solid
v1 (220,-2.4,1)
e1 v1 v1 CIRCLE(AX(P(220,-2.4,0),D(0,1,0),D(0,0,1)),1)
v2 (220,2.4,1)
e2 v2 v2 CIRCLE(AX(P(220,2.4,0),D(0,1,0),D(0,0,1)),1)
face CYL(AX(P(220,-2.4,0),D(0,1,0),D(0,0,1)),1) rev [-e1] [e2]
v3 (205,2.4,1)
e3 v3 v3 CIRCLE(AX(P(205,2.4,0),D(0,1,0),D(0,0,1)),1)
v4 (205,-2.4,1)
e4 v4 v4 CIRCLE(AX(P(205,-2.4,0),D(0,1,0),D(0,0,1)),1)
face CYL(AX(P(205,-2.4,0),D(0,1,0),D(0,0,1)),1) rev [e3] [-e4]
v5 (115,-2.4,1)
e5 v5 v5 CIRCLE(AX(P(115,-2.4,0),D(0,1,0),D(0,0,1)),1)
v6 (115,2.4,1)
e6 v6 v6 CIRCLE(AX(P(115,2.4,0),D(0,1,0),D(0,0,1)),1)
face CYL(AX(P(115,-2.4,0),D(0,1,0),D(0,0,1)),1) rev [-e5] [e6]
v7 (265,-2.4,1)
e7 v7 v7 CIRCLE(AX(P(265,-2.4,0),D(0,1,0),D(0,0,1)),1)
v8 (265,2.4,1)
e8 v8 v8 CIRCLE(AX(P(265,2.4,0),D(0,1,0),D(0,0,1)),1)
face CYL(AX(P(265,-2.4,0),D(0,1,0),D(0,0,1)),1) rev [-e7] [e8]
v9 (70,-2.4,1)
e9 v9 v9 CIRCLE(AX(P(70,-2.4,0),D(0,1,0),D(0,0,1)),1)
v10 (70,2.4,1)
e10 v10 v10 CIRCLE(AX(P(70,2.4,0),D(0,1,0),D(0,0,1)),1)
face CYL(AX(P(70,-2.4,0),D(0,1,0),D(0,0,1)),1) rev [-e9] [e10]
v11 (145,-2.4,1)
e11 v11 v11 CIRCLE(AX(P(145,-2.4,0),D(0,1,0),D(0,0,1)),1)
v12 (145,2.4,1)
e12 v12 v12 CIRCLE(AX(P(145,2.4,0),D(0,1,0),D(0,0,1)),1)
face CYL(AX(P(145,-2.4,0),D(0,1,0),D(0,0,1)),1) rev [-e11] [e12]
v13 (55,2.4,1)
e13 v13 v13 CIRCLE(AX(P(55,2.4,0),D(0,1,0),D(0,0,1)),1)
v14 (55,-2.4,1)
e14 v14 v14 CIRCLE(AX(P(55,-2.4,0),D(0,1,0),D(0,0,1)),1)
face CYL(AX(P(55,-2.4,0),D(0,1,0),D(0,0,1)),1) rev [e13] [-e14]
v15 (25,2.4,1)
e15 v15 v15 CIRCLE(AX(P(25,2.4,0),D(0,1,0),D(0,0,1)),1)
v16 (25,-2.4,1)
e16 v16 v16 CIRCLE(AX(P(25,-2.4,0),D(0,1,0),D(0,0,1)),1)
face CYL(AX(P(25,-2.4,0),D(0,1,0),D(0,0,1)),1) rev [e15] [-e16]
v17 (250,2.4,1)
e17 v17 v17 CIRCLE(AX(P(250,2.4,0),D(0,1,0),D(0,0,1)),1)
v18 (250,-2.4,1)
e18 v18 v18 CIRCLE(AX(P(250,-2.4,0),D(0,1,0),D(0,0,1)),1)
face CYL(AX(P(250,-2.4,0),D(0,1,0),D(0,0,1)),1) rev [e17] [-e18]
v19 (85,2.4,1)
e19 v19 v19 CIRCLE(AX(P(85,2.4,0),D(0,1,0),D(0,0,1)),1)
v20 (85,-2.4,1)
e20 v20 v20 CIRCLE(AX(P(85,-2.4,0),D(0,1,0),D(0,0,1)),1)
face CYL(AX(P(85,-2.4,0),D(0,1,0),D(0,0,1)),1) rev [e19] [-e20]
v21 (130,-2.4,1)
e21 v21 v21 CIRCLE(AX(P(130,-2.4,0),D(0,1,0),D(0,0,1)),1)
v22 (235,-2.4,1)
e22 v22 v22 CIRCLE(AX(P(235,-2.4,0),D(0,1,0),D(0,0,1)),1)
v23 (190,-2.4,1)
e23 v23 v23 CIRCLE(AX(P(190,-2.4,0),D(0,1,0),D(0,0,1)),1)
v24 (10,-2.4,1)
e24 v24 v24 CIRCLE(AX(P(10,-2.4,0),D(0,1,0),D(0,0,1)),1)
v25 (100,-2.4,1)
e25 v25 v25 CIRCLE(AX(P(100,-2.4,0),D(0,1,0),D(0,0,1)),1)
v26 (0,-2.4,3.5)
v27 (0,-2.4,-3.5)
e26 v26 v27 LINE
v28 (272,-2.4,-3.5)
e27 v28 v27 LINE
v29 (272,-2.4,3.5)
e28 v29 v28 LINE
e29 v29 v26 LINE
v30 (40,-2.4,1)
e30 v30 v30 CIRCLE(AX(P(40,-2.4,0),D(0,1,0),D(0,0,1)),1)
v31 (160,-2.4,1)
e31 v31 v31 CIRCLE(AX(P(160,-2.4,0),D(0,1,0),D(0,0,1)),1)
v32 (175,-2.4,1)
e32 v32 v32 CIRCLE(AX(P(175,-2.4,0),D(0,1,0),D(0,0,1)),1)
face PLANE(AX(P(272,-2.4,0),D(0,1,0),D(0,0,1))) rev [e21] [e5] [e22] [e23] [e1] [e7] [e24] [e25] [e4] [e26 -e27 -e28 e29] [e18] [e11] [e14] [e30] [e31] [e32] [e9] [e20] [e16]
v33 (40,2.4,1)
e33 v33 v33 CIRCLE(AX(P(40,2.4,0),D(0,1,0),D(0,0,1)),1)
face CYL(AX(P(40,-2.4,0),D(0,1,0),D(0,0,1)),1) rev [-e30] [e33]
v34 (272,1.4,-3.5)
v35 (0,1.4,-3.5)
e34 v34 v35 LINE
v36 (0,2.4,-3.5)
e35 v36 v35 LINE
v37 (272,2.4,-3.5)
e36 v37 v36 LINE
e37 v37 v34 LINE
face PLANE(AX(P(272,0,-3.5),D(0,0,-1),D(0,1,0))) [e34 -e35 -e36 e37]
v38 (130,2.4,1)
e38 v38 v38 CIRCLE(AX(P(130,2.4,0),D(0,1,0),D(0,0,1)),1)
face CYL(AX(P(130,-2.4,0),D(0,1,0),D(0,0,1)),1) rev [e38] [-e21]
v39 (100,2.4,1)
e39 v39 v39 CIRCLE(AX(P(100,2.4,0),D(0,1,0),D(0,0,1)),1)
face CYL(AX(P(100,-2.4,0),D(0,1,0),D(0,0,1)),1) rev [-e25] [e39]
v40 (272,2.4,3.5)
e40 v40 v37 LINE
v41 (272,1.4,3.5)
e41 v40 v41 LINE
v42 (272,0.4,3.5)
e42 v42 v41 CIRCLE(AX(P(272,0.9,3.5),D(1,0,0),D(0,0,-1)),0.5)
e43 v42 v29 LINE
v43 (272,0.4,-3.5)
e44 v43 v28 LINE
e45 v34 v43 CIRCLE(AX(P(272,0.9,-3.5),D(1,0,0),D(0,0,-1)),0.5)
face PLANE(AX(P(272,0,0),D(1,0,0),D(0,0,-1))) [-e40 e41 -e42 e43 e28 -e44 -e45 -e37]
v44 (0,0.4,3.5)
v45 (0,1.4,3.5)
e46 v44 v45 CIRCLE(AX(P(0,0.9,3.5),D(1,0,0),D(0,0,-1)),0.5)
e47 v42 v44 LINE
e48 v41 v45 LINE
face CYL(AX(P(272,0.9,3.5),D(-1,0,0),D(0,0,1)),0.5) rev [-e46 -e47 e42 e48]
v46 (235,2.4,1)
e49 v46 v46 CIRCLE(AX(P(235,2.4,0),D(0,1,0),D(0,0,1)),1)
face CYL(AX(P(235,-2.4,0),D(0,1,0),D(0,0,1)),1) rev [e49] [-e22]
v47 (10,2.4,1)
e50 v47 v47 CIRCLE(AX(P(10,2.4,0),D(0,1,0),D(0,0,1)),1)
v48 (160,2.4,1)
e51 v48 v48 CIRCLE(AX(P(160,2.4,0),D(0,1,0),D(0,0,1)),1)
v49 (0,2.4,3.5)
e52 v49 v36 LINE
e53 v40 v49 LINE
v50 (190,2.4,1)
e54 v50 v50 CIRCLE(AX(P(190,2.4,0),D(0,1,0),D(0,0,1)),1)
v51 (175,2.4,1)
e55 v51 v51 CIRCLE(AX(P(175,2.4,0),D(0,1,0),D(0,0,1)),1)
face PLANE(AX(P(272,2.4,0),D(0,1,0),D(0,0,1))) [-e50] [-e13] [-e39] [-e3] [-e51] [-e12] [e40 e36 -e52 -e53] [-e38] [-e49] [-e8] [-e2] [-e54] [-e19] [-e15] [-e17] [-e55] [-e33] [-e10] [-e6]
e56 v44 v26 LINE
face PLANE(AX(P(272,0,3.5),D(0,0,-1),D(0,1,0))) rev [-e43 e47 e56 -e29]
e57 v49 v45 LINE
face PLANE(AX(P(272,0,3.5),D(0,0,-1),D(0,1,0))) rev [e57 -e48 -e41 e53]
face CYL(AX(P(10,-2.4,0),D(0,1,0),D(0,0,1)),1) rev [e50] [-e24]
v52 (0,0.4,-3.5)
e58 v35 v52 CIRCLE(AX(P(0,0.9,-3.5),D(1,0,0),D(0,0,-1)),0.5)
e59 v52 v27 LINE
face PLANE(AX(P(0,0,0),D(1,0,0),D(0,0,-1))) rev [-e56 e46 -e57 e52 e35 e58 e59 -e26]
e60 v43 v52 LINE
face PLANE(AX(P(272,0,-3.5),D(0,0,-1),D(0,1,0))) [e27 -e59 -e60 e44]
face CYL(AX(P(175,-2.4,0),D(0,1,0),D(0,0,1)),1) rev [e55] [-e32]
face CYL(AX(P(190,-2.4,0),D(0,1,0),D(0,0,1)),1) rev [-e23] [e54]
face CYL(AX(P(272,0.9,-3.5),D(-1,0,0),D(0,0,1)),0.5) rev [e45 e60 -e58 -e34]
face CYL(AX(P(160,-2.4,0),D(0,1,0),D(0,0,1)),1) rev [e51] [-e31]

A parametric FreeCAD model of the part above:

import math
import FreeCAD as App
import Part
import Sketcher
Q = App.Units.Quantity

doc = App.newDocument("Part")
body = doc.addObject("PartDesign::Body", "Body")

# Sketch on YZ plane
sketch1 = body.newObject("Sketcher::SketchObject", "Sketch")
sketch1.AttachmentSupport = (doc.getObject("YZ_Plane"), [""])
sketch1.MapMode = "FlatFace"
sketch1.addGeometry(Part.LineSegment(App.Vector(2.4, -3.5, 0), App.Vector(2.4, 3.5, 0)), False)
sketch1.addGeometry(Part.LineSegment(App.Vector(2.4, 3.5, 0), App.Vector(1.4, 3.5, 0)), False)
sketch1.addGeometry(Part.ArcOfCircle(Part.Circle(App.Vector(0.9, 3.5, 0), App.Vector(0, 0, 1), 0.5), math.radians(-90), math.radians(0)), False)
sketch1.addGeometry(Part.ArcOfCircle(Part.Circle(App.Vector(0.9, 3.5, 0), App.Vector(0, 0, 1), 0.5), math.radians(180), math.radians(270)), False)
sketch1.addGeometry(Part.LineSegment(App.Vector(0.4, 3.5, 0), App.Vector(-2.4, 3.5, 0)), False)
sketch1.addGeometry(Part.LineSegment(App.Vector(-2.4, 3.5, 0), App.Vector(-2.4, -3.5, 0)), False)
sketch1.addGeometry(Part.LineSegment(App.Vector(-2.4, -3.5, 0), App.Vector(0.4, -3.5, 0)), False)
sketch1.addGeometry(Part.ArcOfCircle(Part.Circle(App.Vector(0.9, -3.5, 0), App.Vector(0, 0, 1), 0.5), math.radians(0), math.radians(180)), False)
sketch1.addGeometry(Part.LineSegment(App.Vector(1.4, -3.5, 0), App.Vector(2.4, -3.5, 0)), False)
sketch1.addConstraint(Sketcher.Constraint("Coincident", 0, 2, 1, 1))
sketch1.addConstraint(Sketcher.Constraint("Coincident", 1, 2, 2, 2))
sketch1.addConstraint(Sketcher.Constraint("Tangent", 2, 1, 3, 2))
sketch1.addConstraint(Sketcher.Constraint("Coincident", 3, 1, 4, 1))
sketch1.addConstraint(Sketcher.Constraint("Coincident", 4, 2, 5, 1))
sketch1.addConstraint(Sketcher.Constraint("Coincident", 5, 2, 6, 1))
sketch1.addConstraint(Sketcher.Constraint("Coincident", 6, 2, 7, 2))
sketch1.addConstraint(Sketcher.Constraint("Coincident", 7, 1, 8, 1))
sketch1.addConstraint(Sketcher.Constraint("Coincident", 8, 2, 0, 1))
sketch1.addConstraint(Sketcher.Constraint("Vertical", 0))
sketch1.addConstraint(Sketcher.Constraint("Horizontal", 1))
sketch1.addConstraint(Sketcher.Constraint("Horizontal", 4))
sketch1.addConstraint(Sketcher.Constraint("Vertical", 5))
sketch1.addConstraint(Sketcher.Constraint("Horizontal", 6))
sketch1.addConstraint(Sketcher.Constraint("Horizontal", 8))
sketch1.addConstraint(Sketcher.Constraint("Equal", 2, 3))
sketch1.addConstraint(Sketcher.Constraint("Equal", 3, 7))
sketch1.addConstraint(Sketcher.Constraint("Symmetric", 0, 2, 5, 2, -1, 1))
sketch1.addConstraint(Sketcher.Constraint("Symmetric", 2, 3, 7, 3, -1))
sketch1.addConstraint(Sketcher.Constraint("Horizontal", 3, 3, 0, 2))
sketch1.addConstraint(Sketcher.Constraint("Horizontal", 1, 2, 3, 1))
sketch1.addConstraint(Sketcher.Constraint("Horizontal", 6, 2, 7, 1))
sketch1.addConstraint(Sketcher.Constraint("Vertical", 7, 3, 2, 1))
sketch1.addConstraint(Sketcher.Constraint("Radius", 2, Q("0.5 mm")))
sketch1.addConstraint(Sketcher.Constraint("DistanceX", 1, 2, 1, 1, Q("1 mm")))
sketch1.addConstraint(Sketcher.Constraint("DistanceY", 0, 1, 0, 2, Q("7 mm")))
sketch1.addConstraint(Sketcher.Constraint("DistanceX", 4, 2, 4, 1, Q("2.8 mm")))
pad1 = body.newObject("PartDesign::Pad", "Pad")
pad1.Profile = sketch1
pad1.Length = 272

# Sketch on XZ plane
sketch2 = body.newObject("Sketcher::SketchObject", "Sketch001")
sketch2.AttachmentSupport = (doc.getObject("XZ_Plane"), [""])
sketch2.MapMode = "FlatFace"
sketch2.AttachmentOffset = App.Placement(App.Vector(0, 0, -2.4), App.Rotation())
sketch2.addGeometry(Part.Circle(App.Vector(10, 0, 0), App.Vector(0, 0, 1), 1), False)
sketch2.addGeometry(Part.Circle(App.Vector(25, 0, 0), App.Vector(0, 0, 1), 1), False)
sketch2.addGeometry(Part.Circle(App.Vector(40, 0, 0), App.Vector(0, 0, 1), 1), False)
sketch2.addGeometry(Part.Circle(App.Vector(55, 0, 0), App.Vector(0, 0, 1), 1), False)
sketch2.addGeometry(Part.Circle(App.Vector(70, 0, 0), App.Vector(0, 0, 1), 1), False)
sketch2.addGeometry(Part.Circle(App.Vector(85, 0, 0), App.Vector(0, 0, 1), 1), False)
sketch2.addGeometry(Part.Circle(App.Vector(100, 0, 0), App.Vector(0, 0, 1), 1), False)
sketch2.addGeometry(Part.Circle(App.Vector(115, 0, 0), App.Vector(0, 0, 1), 1), False)
sketch2.addGeometry(Part.Circle(App.Vector(130, 0, 0), App.Vector(0, 0, 1), 1), False)
sketch2.addGeometry(Part.Circle(App.Vector(145, 0, 0), App.Vector(0, 0, 1), 1), False)
sketch2.addGeometry(Part.Circle(App.Vector(160, 0, 0), App.Vector(0, 0, 1), 1), False)
sketch2.addGeometry(Part.Circle(App.Vector(175, 0, 0), App.Vector(0, 0, 1), 1), False)
sketch2.addGeometry(Part.Circle(App.Vector(190, 0, 0), App.Vector(0, 0, 1), 1), False)
sketch2.addGeometry(Part.Circle(App.Vector(205, 0, 0), App.Vector(0, 0, 1), 1), False)
sketch2.addGeometry(Part.Circle(App.Vector(220, 0, 0), App.Vector(0, 0, 1), 1), False)
sketch2.addGeometry(Part.Circle(App.Vector(235, 0, 0), App.Vector(0, 0, 1), 1), False)
sketch2.addGeometry(Part.Circle(App.Vector(250, 0, 0), App.Vector(0, 0, 1), 1), False)
sketch2.addGeometry(Part.Circle(App.Vector(265, 0, 0), App.Vector(0, 0, 1), 1), False)
sketch2.addGeometry(Part.Circle(App.Vector(280, 0, 0), App.Vector(0, 0, 1), 1), False)
sketch2.addGeometry(Part.Circle(App.Vector(295, 0, 0), App.Vector(0, 0, 1), 1), False)
sketch2.addGeometry(Part.Circle(App.Vector(310, 0, 0), App.Vector(0, 0, 1), 1), False)
sketch2.addGeometry(Part.Circle(App.Vector(325, 0, 0), App.Vector(0, 0, 1), 1), False)
sketch2.addGeometry(Part.Circle(App.Vector(340, 0, 0), App.Vector(0, 0, 1), 1), False)
sketch2.addGeometry(Part.Circle(App.Vector(355, 0, 0), App.Vector(0, 0, 1), 1), False)
sketch2.addGeometry(Part.Circle(App.Vector(370, 0, 0), App.Vector(0, 0, 1), 1), False)
sketch2.addGeometry(Part.Circle(App.Vector(385, 0, 0), App.Vector(0, 0, 1), 1), False)
sketch2.addGeometry(Part.Circle(App.Vector(400, 0, 0), App.Vector(0, 0, 1), 1), False)
sketch2.addGeometry(Part.Circle(App.Vector(415, 0, 0), App.Vector(0, 0, 1), 1), False)
sketch2.addGeometry(Part.Circle(App.Vector(430, 0, 0), App.Vector(0, 0, 1), 1), False)
sketch2.addGeometry(Part.Circle(App.Vector(445, 0, 0), App.Vector(0, 0, 1), 1), False)
sketch2.addGeometry(Part.Circle(App.Vector(460, 0, 0), App.Vector(0, 0, 1), 1), False)
sketch2.addConstraint(Sketcher.Constraint("Equal", 0, 1))
sketch2.addConstraint(Sketcher.Constraint("Equal", 1, 2))
sketch2.addConstraint(Sketcher.Constraint("Equal", 2, 3))
sketch2.addConstraint(Sketcher.Constraint("Equal", 3, 4))
sketch2.addConstraint(Sketcher.Constraint("Equal", 4, 5))
sketch2.addConstraint(Sketcher.Constraint("Equal", 5, 6))
sketch2.addConstraint(Sketcher.Constraint("Equal", 6, 7))
sketch2.addConstraint(Sketcher.Constraint("Equal", 7, 8))
sketch2.addConstraint(Sketcher.Constraint("Equal", 8, 9))
sketch2.addConstraint(Sketcher.Constraint("Equal", 9, 10))
sketch2.addConstraint(Sketcher.Constraint("Equal", 10, 11))
sketch2.addConstraint(Sketcher.Constraint("Equal", 11, 12))
sketch2.addConstraint(Sketcher.Constraint("Equal", 12, 13))
sketch2.addConstraint(Sketcher.Constraint("Equal", 13, 14))
sketch2.addConstraint(Sketcher.Constraint("Equal", 14, 15))
sketch2.addConstraint(Sketcher.Constraint("Equal", 15, 16))
sketch2.addConstraint(Sketcher.Constraint("Equal", 16, 17))
sketch2.addConstraint(Sketcher.Constraint("Equal", 17, 18))
sketch2.addConstraint(Sketcher.Constraint("Equal", 18, 19))
sketch2.addConstraint(Sketcher.Constraint("Equal", 19, 20))
sketch2.addConstraint(Sketcher.Constraint("Equal", 20, 21))
sketch2.addConstraint(Sketcher.Constraint("Equal", 21, 22))
sketch2.addConstraint(Sketcher.Constraint("Equal", 22, 23))
sketch2.addConstraint(Sketcher.Constraint("Equal", 23, 24))
sketch2.addConstraint(Sketcher.Constraint("Equal", 24, 25))
sketch2.addConstraint(Sketcher.Constraint("Equal", 25, 26))
sketch2.addConstraint(Sketcher.Constraint("Equal", 26, 27))
sketch2.addConstraint(Sketcher.Constraint("Equal", 27, 28))
sketch2.addConstraint(Sketcher.Constraint("Equal", 28, 29))
sketch2.addConstraint(Sketcher.Constraint("Equal", 29, 30))
sketch2.addConstraint(Sketcher.Constraint("PointOnObject", 0, 3, -1))
sketch2.addConstraint(Sketcher.Constraint("PointOnObject", 1, 3, -1))
sketch2.addConstraint(Sketcher.Constraint("PointOnObject", 2, 3, -1))
sketch2.addConstraint(Sketcher.Constraint("PointOnObject", 3, 3, -1))
sketch2.addConstraint(Sketcher.Constraint("PointOnObject", 4, 3, -1))
sketch2.addConstraint(Sketcher.Constraint("PointOnObject", 5, 3, -1))
sketch2.addConstraint(Sketcher.Constraint("PointOnObject", 6, 3, -1))
sketch2.addConstraint(Sketcher.Constraint("PointOnObject", 7, 3, -1))
sketch2.addConstraint(Sketcher.Constraint("PointOnObject", 8, 3, -1))
sketch2.addConstraint(Sketcher.Constraint("PointOnObject", 9, 3, -1))
sketch2.addConstraint(Sketcher.Constraint("PointOnObject", 10, 3, -1))
sketch2.addConstraint(Sketcher.Constraint("PointOnObject", 11, 3, -1))
sketch2.addConstraint(Sketcher.Constraint("PointOnObject", 12, 3, -1))
sketch2.addConstraint(Sketcher.Constraint("PointOnObject", 13, 3, -1))
sketch2.addConstraint(Sketcher.Constraint("PointOnObject", 14, 3, -1))
sketch2.addConstraint(Sketcher.Constraint("PointOnObject", 15, 3, -1))
sketch2.addConstraint(Sketcher.Constraint("PointOnObject", 16, 3, -1))
sketch2.addConstraint(Sketcher.Constraint("PointOnObject", 17, 3, -1))
sketch2.addConstraint(Sketcher.Constraint("PointOnObject", 18, 3, -1))
sketch2.addConstraint(Sketcher.Constraint("PointOnObject", 19, 3, -1))
sketch2.addConstraint(Sketcher.Constraint("PointOnObject", 20, 3, -1))
sketch2.addConstraint(Sketcher.Constraint("PointOnObject", 21, 3, -1))
sketch2.addConstraint(Sketcher.Constraint("PointOnObject", 22, 3, -1))
sketch2.addConstraint(Sketcher.Constraint("PointOnObject", 23, 3, -1))
sketch2.addConstraint(Sketcher.Constraint("PointOnObject", 24, 3, -1))
sketch2.addConstraint(Sketcher.Constraint("PointOnObject", 25, 3, -1))
sketch2.addConstraint(Sketcher.Constraint("PointOnObject", 26, 3, -1))
sketch2.addConstraint(Sketcher.Constraint("PointOnObject", 27, 3, -1))
sketch2.addConstraint(Sketcher.Constraint("PointOnObject", 28, 3, -1))
sketch2.addConstraint(Sketcher.Constraint("PointOnObject", 29, 3, -1))
sketch2.addConstraint(Sketcher.Constraint("PointOnObject", 30, 3, -1))
sketch2.addConstraint(Sketcher.Constraint("Diameter", 0, Q("2 mm")))
sketch2.addConstraint(Sketcher.Constraint("DistanceX", -1, 1, 0, 3, Q("10 mm")))
sketch2.addConstraint(Sketcher.Constraint("DistanceX", -1, 1, 1, 3, Q("25 mm")))
sketch2.addConstraint(Sketcher.Constraint("DistanceX", -1, 1, 2, 3, Q("40 mm")))
sketch2.addConstraint(Sketcher.Constraint("DistanceX", -1, 1, 3, 3, Q("55 mm")))
sketch2.addConstraint(Sketcher.Constraint("DistanceX", -1, 1, 4, 3, Q("70 mm")))
sketch2.addConstraint(Sketcher.Constraint("DistanceX", -1, 1, 5, 3, Q("85 mm")))
sketch2.addConstraint(Sketcher.Constraint("DistanceX", -1, 1, 6, 3, Q("100 mm")))
sketch2.addConstraint(Sketcher.Constraint("DistanceX", -1, 1, 7, 3, Q("115 mm")))
sketch2.addConstraint(Sketcher.Constraint("DistanceX", -1, 1, 8, 3, Q("130 mm")))
sketch2.addConstraint(Sketcher.Constraint("DistanceX", -1, 1, 9, 3, Q("145 mm")))
sketch2.addConstraint(Sketcher.Constraint("DistanceX", -1, 1, 10, 3, Q("160 mm")))
sketch2.addConstraint(Sketcher.Constraint("DistanceX", -1, 1, 11, 3, Q("175 mm")))
sketch2.addConstraint(Sketcher.Constraint("DistanceX", -1, 1, 12, 3, Q("190 mm")))
sketch2.addConstraint(Sketcher.Constraint("DistanceX", -1, 1, 13, 3, Q("205 mm")))
sketch2.addConstraint(Sketcher.Constraint("DistanceX", -1, 1, 14, 3, Q("220 mm")))
sketch2.addConstraint(Sketcher.Constraint("DistanceX", -1, 1, 15, 3, Q("235 mm")))
sketch2.addConstraint(Sketcher.Constraint("DistanceX", -1, 1, 16, 3, Q("250 mm")))
sketch2.addConstraint(Sketcher.Constraint("DistanceX", -1, 1, 17, 3, Q("265 mm")))
sketch2.addConstraint(Sketcher.Constraint("DistanceX", -1, 1, 18, 3, Q("280 mm")))
sketch2.addConstraint(Sketcher.Constraint("DistanceX", -1, 1, 19, 3, Q("295 mm")))
sketch2.addConstraint(Sketcher.Constraint("DistanceX", -1, 1, 20, 3, Q("310 mm")))
sketch2.addConstraint(Sketcher.Constraint("DistanceX", -1, 1, 21, 3, Q("325 mm")))
sketch2.addConstraint(Sketcher.Constraint("DistanceX", -1, 1, 22, 3, Q("340 mm")))
sketch2.addConstraint(Sketcher.Constraint("DistanceX", -1, 1, 23, 3, Q("355 mm")))
sketch2.addConstraint(Sketcher.Constraint("DistanceX", -1, 1, 24, 3, Q("370 mm")))
sketch2.addConstraint(Sketcher.Constraint("DistanceX", -1, 1, 25, 3, Q("385 mm")))
sketch2.addConstraint(Sketcher.Constraint("DistanceX", -1, 1, 26, 3, Q("400 mm")))
sketch2.addConstraint(Sketcher.Constraint("DistanceX", -1, 1, 27, 3, Q("415 mm")))
sketch2.addConstraint(Sketcher.Constraint("DistanceX", -1, 1, 28, 3, Q("430 mm")))
sketch2.addConstraint(Sketcher.Constraint("DistanceX", -1, 1, 29, 3, Q("445 mm")))
sketch2.addConstraint(Sketcher.Constraint("DistanceX", -1, 1, 30, 3, Q("460 mm")))
pocket1 = body.newObject("PartDesign::Pocket", "Pocket")
pocket1.Profile = sketch2
pocket1.Type = "ThroughAll"
pocket1.Reversed = True

doc.recompute()
